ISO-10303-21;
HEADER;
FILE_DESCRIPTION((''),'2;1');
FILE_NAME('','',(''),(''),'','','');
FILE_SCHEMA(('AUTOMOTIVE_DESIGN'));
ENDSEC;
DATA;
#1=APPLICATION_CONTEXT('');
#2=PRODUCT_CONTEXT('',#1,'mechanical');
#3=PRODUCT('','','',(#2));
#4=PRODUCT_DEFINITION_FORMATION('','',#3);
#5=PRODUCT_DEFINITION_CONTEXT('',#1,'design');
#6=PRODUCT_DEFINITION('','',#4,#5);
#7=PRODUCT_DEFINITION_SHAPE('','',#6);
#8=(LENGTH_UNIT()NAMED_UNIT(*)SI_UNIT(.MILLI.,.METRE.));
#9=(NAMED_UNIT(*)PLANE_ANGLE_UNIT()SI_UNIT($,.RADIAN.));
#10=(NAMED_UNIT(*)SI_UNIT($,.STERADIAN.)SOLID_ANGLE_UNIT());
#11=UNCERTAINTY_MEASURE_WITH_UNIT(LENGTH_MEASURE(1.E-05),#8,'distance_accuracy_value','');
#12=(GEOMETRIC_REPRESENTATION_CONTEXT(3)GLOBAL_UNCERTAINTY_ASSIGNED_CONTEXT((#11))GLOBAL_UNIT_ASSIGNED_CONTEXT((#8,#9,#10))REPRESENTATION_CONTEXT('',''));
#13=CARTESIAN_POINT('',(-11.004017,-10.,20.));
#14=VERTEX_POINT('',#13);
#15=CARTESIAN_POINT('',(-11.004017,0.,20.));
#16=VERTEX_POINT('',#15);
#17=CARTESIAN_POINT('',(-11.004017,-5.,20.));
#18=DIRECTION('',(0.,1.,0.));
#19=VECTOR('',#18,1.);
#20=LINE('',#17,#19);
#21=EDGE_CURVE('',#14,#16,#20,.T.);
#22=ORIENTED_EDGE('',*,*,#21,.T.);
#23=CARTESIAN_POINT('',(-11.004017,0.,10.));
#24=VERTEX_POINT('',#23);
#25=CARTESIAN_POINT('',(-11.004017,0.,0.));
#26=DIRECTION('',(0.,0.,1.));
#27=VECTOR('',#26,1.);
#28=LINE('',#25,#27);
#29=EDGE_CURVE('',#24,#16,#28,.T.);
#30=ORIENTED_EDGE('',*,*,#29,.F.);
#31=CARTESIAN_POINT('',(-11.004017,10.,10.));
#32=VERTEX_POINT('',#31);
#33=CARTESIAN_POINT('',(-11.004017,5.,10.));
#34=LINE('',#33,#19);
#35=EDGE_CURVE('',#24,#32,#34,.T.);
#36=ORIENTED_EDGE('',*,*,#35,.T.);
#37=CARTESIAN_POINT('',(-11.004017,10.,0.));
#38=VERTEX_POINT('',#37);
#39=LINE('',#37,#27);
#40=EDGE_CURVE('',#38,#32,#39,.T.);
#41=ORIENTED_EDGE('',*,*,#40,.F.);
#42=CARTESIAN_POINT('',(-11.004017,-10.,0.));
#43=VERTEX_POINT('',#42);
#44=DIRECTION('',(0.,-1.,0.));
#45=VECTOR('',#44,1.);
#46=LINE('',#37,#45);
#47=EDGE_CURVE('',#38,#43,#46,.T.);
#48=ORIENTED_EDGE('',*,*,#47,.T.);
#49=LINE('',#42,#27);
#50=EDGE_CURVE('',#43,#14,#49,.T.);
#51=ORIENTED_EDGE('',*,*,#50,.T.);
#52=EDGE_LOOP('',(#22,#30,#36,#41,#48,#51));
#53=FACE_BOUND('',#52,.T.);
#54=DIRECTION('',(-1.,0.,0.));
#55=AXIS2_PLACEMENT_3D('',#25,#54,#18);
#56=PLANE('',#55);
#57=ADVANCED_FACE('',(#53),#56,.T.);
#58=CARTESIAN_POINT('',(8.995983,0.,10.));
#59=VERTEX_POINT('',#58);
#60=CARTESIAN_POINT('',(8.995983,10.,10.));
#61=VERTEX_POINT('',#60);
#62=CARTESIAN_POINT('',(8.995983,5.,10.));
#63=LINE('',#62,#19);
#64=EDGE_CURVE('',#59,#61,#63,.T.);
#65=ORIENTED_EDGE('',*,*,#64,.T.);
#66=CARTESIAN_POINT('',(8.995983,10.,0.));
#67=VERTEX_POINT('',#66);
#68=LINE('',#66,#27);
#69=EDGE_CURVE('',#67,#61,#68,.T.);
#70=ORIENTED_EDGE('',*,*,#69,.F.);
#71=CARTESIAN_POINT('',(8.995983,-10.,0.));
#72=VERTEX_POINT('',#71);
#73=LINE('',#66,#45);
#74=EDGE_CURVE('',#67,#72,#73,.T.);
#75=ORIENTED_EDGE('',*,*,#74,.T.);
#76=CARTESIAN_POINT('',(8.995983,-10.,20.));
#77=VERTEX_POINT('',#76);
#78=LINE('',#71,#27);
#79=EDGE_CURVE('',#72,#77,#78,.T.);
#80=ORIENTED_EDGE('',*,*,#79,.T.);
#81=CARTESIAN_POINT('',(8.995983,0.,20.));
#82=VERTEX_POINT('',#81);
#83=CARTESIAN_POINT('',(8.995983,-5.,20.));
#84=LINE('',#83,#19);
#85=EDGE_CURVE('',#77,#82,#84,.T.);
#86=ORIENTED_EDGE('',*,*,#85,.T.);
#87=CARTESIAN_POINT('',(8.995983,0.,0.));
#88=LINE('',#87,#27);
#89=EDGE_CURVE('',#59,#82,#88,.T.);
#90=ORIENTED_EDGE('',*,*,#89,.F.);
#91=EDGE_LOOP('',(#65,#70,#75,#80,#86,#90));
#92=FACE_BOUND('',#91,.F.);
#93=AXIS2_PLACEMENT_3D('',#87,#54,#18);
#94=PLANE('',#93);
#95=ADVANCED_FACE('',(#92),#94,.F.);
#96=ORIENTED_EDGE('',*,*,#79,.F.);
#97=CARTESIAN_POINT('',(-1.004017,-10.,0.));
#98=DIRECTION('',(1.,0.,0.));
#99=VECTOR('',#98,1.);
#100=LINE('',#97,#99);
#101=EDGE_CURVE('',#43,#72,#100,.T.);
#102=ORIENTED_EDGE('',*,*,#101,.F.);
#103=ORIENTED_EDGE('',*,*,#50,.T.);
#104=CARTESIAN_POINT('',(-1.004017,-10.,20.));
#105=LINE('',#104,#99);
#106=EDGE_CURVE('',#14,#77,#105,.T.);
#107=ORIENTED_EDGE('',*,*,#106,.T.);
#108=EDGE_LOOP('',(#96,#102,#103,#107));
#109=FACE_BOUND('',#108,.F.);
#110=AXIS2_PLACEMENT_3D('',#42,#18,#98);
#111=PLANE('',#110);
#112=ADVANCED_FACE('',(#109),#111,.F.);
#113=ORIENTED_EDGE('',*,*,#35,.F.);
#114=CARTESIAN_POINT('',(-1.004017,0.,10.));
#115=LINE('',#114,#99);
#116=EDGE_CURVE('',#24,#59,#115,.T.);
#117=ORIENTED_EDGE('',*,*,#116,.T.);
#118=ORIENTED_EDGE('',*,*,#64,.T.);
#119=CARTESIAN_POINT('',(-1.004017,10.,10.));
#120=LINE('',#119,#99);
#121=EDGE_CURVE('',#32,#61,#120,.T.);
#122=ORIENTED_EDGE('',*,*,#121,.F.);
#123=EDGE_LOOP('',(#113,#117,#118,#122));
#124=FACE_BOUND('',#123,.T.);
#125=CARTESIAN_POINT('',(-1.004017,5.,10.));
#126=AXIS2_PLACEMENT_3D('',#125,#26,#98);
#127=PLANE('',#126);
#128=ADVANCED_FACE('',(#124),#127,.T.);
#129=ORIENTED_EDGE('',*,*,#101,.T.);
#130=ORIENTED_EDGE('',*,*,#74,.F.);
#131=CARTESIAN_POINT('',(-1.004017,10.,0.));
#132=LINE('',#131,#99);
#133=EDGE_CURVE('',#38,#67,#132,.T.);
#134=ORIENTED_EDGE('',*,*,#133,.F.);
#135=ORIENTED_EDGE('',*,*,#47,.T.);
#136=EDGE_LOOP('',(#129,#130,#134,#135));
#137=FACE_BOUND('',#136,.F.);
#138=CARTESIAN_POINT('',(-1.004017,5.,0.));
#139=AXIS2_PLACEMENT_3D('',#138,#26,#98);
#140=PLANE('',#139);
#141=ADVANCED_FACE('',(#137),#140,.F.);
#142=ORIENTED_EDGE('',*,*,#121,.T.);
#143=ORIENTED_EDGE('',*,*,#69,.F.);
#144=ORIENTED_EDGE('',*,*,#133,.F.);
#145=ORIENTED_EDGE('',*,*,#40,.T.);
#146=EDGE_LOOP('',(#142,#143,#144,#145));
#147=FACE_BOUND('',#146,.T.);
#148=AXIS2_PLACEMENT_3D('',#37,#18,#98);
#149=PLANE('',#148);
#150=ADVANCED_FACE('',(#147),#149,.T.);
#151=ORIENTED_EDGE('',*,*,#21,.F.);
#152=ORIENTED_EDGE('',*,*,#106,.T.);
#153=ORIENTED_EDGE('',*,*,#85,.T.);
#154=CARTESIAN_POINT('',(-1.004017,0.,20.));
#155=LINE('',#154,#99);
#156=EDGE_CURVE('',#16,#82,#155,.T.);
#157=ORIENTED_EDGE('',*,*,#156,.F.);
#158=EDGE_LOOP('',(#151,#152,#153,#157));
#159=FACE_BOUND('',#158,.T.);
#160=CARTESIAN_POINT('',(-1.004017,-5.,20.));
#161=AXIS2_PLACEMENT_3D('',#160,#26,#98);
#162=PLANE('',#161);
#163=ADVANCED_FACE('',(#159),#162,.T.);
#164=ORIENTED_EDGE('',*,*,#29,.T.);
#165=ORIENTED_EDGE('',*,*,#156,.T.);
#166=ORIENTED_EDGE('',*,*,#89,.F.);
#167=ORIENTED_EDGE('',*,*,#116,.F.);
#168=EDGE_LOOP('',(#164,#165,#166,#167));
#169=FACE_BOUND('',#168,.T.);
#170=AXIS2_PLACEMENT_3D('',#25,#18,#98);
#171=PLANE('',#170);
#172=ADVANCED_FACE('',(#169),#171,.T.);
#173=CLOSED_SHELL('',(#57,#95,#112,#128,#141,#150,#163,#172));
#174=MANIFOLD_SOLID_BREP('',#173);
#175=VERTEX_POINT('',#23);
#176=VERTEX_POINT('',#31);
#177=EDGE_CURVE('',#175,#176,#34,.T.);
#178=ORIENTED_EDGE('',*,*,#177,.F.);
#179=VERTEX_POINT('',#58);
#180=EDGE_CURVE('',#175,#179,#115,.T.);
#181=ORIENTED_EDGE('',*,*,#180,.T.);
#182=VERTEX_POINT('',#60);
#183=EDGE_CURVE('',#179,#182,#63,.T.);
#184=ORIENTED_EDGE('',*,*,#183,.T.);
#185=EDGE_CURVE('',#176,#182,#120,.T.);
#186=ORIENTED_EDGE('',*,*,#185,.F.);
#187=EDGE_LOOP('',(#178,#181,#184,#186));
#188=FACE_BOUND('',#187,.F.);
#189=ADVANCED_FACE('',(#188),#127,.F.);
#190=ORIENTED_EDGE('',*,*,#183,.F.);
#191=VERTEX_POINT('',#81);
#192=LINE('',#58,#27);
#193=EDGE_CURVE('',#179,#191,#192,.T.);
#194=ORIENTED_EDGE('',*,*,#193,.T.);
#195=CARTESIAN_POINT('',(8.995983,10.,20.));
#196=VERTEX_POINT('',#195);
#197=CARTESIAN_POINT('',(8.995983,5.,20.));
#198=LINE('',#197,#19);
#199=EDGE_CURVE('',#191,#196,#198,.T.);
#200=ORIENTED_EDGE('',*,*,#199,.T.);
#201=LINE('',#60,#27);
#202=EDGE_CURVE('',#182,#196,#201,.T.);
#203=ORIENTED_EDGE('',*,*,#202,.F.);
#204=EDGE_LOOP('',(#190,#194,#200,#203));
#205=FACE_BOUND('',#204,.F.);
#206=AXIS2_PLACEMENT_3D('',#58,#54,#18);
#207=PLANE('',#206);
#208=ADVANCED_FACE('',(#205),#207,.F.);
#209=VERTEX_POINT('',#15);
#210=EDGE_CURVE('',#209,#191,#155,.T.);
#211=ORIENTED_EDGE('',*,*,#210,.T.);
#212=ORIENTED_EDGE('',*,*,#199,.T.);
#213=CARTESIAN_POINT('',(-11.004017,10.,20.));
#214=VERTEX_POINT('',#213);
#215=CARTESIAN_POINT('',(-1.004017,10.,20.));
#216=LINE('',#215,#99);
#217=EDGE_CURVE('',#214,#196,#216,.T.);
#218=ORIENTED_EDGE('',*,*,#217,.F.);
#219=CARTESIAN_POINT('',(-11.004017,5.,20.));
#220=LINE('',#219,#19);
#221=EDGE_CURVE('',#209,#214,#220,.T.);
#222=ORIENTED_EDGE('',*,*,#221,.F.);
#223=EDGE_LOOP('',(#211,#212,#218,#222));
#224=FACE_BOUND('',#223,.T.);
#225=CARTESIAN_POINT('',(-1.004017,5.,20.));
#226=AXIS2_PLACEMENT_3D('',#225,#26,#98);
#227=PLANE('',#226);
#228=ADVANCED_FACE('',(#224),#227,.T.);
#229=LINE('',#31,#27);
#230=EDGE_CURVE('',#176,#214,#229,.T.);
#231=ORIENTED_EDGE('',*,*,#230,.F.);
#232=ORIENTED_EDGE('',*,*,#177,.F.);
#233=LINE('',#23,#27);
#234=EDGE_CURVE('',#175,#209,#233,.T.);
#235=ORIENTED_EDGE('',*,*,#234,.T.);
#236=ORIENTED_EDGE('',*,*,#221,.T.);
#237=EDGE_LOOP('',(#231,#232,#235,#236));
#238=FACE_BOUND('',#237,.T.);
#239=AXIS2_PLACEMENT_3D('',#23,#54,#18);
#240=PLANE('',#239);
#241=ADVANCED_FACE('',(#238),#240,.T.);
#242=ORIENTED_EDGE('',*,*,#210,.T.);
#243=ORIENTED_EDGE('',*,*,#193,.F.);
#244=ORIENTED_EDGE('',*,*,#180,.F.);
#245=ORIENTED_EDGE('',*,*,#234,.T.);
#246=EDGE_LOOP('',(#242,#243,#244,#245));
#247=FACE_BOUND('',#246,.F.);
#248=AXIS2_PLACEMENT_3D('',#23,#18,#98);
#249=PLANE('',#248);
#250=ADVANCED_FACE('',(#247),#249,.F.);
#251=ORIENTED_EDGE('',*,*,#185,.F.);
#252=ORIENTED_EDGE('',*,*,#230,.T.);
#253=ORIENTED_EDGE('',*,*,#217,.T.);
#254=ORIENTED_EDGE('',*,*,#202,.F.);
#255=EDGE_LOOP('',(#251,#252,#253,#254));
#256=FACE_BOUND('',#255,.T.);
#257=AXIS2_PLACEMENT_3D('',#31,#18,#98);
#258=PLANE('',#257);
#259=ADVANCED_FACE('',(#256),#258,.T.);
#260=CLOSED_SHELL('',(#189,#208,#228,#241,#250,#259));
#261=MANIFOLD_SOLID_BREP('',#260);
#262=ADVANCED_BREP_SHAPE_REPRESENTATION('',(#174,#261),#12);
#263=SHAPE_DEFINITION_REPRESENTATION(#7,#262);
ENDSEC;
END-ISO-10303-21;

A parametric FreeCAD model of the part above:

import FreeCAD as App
import Part
import Sketcher

V = App.Vector
Q = App.Units.Quantity


def add_polygon(sketch, points):
    """Adds a closed chain of lines whose ends are joined by coincident constraints."""
    first, n = sketch.GeometryCount, len(points)
    for a, b in zip(points, points[1:] + points[:1]):
        sketch.addGeometry(Part.LineSegment(App.Vector(*a, 0), App.Vector(*b, 0)), False)
    for i in range(n):
        sketch.addConstraint(Sketcher.Constraint("Coincident", first + i, 2, first + (i + 1) % n, 1))

doc = App.newDocument("Part")
body = doc.addObject("PartDesign::Body", "Body")

# Sketch on XY plane
sketch1 = body.newObject("Sketcher::SketchObject", "Sketch")
sketch1.AttachmentSupport = (doc.getObject("XY_Plane"), [""])
sketch1.MapMode = "FlatFace"
add_polygon(sketch1, [(-11, 0), (-11, -10), (9, -10), (9, 0)])  # lines 0-3
sketch1.addConstraint([
    Sketcher.Constraint("Vertical", 0),
    Sketcher.Constraint("Horizontal", 1),
    Sketcher.Constraint("Vertical", 2),
    Sketcher.Constraint("Horizontal", 3),
    Sketcher.Constraint("PointOnObject", 2, 2, -1),
    Sketcher.Constraint("DistanceX", 1, 1, 1, 2, Q("20 mm")),
    Sketcher.Constraint("DistanceY", 0, 2, 0, 1, Q("10 mm")),
    Sketcher.Constraint("DistanceX", 0, 2, -1, 1, Q("11.004017 mm")),
])
pad1 = body.newObject("PartDesign::Pad", "Pad")
pad1.Profile = sketch1
pad1.Length = 20

# Sketch on XY plane
sketch2 = body.newObject("Sketcher::SketchObject", "Sketch001")
sketch2.AttachmentSupport = (doc.getObject("XY_Plane"), [""])
sketch2.MapMode = "FlatFace"
add_polygon(sketch2, [(-11, 10), (-11, 0), (9, 0), (9, 10)])  # lines 0-3
sketch2.addConstraint([
    Sketcher.Constraint("Vertical", 0),
    Sketcher.Constraint("Horizontal", 1),
    Sketcher.Constraint("Vertical", 2),
    Sketcher.Constraint("Horizontal", 3),
    Sketcher.Constraint("PointOnObject", 0, 2, -1),
    Sketcher.Constraint("DistanceX", 1, 1, 1, 2, Q("20 mm")),
    Sketcher.Constraint("DistanceY", 0, 2, 0, 1, Q("10 mm")),
    Sketcher.Constraint("DistanceX", 0, 2, -1, 1, Q("11.004017 mm")),
])
pad2 = body.newObject("PartDesign::Pad", "Pad001")
pad2.Profile = sketch2
pad2.Length = 10
body2 = doc.addObject("PartDesign::Body", "Body001")

# Sketch on XY plane
sketch3 = body2.newObject("Sketcher::SketchObject", "Sketch002")
sketch3.AttachmentSupport = (doc.getObject("XY_Plane001"), [""])
sketch3.MapMode = "FlatFace"
sketch3.AttachmentOffset = App.Placement(V(0, 0, 10), App.Rotation())
add_polygon(sketch3, [(-11, 10), (-11, 0), (9, 0), (9, 10)])  # lines 0-3
sketch3.addConstraint([
    Sketcher.Constraint("Vertical", 0),
    Sketcher.Constraint("Horizontal", 1),
    Sketcher.Constraint("Vertical", 2),
    Sketcher.Constraint("Horizontal", 3),
    Sketcher.Constraint("PointOnObject", 0, 2, -1),
    Sketcher.Constraint("DistanceX", 1, 1, 1, 2, Q("20 mm")),
    Sketcher.Constraint("DistanceY", 0, 2, 0, 1, Q("10 mm")),
    Sketcher.Constraint("DistanceX", 0, 2, -1, 1, Q("11.004017 mm")),
])
pad3 = body2.newObject("PartDesign::Pad", "Pad002")
pad3.Profile = sketch3
pad3.Length = 10

doc.recompute()
